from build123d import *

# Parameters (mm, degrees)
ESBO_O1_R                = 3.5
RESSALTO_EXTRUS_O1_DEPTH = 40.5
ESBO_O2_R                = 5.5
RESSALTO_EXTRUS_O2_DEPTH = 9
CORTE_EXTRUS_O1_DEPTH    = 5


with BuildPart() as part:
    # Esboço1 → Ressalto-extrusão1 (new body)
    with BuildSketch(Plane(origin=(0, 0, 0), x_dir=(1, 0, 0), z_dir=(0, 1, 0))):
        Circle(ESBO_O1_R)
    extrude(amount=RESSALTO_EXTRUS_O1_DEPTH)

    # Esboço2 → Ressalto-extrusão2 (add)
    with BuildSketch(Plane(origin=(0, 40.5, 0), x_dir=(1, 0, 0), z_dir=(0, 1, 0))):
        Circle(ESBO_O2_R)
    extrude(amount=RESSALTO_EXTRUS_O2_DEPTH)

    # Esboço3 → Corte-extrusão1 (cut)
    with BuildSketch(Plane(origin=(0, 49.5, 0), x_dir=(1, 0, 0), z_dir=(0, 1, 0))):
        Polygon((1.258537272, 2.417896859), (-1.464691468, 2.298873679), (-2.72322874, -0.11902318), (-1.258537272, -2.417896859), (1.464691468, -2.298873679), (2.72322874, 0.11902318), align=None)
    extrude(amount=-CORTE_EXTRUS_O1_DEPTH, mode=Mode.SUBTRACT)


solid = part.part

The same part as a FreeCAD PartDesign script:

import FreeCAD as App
import Part
import Sketcher
Q = App.Units.Quantity


def add_polygon(sketch, points):
    """Adds a closed chain of lines whose ends are joined by coincident constraints."""
    first, n = sketch.GeometryCount, len(points)
    for a, b in zip(points, points[1:] + points[:1]):
        sketch.addGeometry(Part.LineSegment(App.Vector(*a, 0), App.Vector(*b, 0)), False)
    for i in range(n):
        sketch.addConstraint(Sketcher.Constraint("Coincident", first + i, 2, first + (i + 1) % n, 1))

doc = App.newDocument("Part")
body = doc.addObject("PartDesign::Body", "Body")

sketch1 = body.newObject("Sketcher::SketchObject", "Sketch")
sketch1.AttachmentSupport = (doc.getObject("XZ_Plane"), [""])
sketch1.MapMode = "FlatFace"
sketch1.addGeometry(Part.Circle(App.Vector(0, 0, 0), App.Vector(0, 0, 1), 3.5), False)
sketch1.addConstraint([
    Sketcher.Constraint("Coincident", 0, 3, -1, 1),
    Sketcher.Constraint("Diameter", 0, Q("7 mm")),
])
pad1 = body.newObject("PartDesign::Pad", "Pad")
pad1.Profile = sketch1
pad1.Length = 40.5
pad1.Reversed = True

sketch2 = body.newObject("Sketcher::SketchObject", "Sketch001")
sketch2.AttachmentSupport = (doc.getObject("XZ_Plane"), [""])
sketch2.MapMode = "FlatFace"
sketch2.AttachmentOffset = App.Placement(App.Vector(0, 0, -40.5), App.Rotation())
sketch2.addGeometry(Part.Circle(App.Vector(0, 0, 0), App.Vector(0, 0, 1), 6), False)
sketch2.addConstraint([
    Sketcher.Constraint("Coincident", 0, 3, -1, 1),
    Sketcher.Constraint("Diameter", 0, Q("11 mm")),
])
pad2 = body.newObject("PartDesign::Pad", "Pad001")
pad2.Profile = sketch2
pad2.Length = 9
pad2.Reversed = True

sketch3 = body.newObject("Sketcher::SketchObject", "Sketch002")
sketch3.AttachmentSupport = (doc.getObject("XZ_Plane"), [""])
sketch3.MapMode = "FlatFace"
sketch3.AttachmentOffset = App.Placement(App.Vector(0, 0, -49.5), App.Rotation())
add_polygon(sketch3, [(1.3, -2.4), (-1.5, -2.3), (-2.7, 0.1), (-1.3, 2.4), (1.5, 2.3), (2.7, -0.1)])
sketch3.addConstraint([
    Sketcher.Constraint("Symmetric", 0, 2, 3, 2, -1, 1),
    Sketcher.Constraint("Symmetric", 1, 2, 4, 2, -1, 1),
    Sketcher.Constraint("Symmetric", 2, 2, 5, 2, -1, 1),
    Sketcher.Constraint("Equal", 0, 1),
    Sketcher.Constraint("Equal", 1, 2),
    Sketcher.Constraint("Distance", 0, Q("2.725829 mm")),
    Sketcher.Constraint("DistanceX", 0, 2, -1, 1, Q("1.464691 mm")),
    Sketcher.Constraint("DistanceX", 1, 2, -1, 1, Q("2.723229 mm")),
    Sketcher.Constraint("DistanceX", 1, 2, 2, 2, Q("1.464691 mm")),
])
pocket1 = body.newObject("PartDesign::Pocket", "Pocket")
pocket1.Profile = sketch3
pocket1.Length = 5
pocket1.Reversed = True

doc.recompute()
